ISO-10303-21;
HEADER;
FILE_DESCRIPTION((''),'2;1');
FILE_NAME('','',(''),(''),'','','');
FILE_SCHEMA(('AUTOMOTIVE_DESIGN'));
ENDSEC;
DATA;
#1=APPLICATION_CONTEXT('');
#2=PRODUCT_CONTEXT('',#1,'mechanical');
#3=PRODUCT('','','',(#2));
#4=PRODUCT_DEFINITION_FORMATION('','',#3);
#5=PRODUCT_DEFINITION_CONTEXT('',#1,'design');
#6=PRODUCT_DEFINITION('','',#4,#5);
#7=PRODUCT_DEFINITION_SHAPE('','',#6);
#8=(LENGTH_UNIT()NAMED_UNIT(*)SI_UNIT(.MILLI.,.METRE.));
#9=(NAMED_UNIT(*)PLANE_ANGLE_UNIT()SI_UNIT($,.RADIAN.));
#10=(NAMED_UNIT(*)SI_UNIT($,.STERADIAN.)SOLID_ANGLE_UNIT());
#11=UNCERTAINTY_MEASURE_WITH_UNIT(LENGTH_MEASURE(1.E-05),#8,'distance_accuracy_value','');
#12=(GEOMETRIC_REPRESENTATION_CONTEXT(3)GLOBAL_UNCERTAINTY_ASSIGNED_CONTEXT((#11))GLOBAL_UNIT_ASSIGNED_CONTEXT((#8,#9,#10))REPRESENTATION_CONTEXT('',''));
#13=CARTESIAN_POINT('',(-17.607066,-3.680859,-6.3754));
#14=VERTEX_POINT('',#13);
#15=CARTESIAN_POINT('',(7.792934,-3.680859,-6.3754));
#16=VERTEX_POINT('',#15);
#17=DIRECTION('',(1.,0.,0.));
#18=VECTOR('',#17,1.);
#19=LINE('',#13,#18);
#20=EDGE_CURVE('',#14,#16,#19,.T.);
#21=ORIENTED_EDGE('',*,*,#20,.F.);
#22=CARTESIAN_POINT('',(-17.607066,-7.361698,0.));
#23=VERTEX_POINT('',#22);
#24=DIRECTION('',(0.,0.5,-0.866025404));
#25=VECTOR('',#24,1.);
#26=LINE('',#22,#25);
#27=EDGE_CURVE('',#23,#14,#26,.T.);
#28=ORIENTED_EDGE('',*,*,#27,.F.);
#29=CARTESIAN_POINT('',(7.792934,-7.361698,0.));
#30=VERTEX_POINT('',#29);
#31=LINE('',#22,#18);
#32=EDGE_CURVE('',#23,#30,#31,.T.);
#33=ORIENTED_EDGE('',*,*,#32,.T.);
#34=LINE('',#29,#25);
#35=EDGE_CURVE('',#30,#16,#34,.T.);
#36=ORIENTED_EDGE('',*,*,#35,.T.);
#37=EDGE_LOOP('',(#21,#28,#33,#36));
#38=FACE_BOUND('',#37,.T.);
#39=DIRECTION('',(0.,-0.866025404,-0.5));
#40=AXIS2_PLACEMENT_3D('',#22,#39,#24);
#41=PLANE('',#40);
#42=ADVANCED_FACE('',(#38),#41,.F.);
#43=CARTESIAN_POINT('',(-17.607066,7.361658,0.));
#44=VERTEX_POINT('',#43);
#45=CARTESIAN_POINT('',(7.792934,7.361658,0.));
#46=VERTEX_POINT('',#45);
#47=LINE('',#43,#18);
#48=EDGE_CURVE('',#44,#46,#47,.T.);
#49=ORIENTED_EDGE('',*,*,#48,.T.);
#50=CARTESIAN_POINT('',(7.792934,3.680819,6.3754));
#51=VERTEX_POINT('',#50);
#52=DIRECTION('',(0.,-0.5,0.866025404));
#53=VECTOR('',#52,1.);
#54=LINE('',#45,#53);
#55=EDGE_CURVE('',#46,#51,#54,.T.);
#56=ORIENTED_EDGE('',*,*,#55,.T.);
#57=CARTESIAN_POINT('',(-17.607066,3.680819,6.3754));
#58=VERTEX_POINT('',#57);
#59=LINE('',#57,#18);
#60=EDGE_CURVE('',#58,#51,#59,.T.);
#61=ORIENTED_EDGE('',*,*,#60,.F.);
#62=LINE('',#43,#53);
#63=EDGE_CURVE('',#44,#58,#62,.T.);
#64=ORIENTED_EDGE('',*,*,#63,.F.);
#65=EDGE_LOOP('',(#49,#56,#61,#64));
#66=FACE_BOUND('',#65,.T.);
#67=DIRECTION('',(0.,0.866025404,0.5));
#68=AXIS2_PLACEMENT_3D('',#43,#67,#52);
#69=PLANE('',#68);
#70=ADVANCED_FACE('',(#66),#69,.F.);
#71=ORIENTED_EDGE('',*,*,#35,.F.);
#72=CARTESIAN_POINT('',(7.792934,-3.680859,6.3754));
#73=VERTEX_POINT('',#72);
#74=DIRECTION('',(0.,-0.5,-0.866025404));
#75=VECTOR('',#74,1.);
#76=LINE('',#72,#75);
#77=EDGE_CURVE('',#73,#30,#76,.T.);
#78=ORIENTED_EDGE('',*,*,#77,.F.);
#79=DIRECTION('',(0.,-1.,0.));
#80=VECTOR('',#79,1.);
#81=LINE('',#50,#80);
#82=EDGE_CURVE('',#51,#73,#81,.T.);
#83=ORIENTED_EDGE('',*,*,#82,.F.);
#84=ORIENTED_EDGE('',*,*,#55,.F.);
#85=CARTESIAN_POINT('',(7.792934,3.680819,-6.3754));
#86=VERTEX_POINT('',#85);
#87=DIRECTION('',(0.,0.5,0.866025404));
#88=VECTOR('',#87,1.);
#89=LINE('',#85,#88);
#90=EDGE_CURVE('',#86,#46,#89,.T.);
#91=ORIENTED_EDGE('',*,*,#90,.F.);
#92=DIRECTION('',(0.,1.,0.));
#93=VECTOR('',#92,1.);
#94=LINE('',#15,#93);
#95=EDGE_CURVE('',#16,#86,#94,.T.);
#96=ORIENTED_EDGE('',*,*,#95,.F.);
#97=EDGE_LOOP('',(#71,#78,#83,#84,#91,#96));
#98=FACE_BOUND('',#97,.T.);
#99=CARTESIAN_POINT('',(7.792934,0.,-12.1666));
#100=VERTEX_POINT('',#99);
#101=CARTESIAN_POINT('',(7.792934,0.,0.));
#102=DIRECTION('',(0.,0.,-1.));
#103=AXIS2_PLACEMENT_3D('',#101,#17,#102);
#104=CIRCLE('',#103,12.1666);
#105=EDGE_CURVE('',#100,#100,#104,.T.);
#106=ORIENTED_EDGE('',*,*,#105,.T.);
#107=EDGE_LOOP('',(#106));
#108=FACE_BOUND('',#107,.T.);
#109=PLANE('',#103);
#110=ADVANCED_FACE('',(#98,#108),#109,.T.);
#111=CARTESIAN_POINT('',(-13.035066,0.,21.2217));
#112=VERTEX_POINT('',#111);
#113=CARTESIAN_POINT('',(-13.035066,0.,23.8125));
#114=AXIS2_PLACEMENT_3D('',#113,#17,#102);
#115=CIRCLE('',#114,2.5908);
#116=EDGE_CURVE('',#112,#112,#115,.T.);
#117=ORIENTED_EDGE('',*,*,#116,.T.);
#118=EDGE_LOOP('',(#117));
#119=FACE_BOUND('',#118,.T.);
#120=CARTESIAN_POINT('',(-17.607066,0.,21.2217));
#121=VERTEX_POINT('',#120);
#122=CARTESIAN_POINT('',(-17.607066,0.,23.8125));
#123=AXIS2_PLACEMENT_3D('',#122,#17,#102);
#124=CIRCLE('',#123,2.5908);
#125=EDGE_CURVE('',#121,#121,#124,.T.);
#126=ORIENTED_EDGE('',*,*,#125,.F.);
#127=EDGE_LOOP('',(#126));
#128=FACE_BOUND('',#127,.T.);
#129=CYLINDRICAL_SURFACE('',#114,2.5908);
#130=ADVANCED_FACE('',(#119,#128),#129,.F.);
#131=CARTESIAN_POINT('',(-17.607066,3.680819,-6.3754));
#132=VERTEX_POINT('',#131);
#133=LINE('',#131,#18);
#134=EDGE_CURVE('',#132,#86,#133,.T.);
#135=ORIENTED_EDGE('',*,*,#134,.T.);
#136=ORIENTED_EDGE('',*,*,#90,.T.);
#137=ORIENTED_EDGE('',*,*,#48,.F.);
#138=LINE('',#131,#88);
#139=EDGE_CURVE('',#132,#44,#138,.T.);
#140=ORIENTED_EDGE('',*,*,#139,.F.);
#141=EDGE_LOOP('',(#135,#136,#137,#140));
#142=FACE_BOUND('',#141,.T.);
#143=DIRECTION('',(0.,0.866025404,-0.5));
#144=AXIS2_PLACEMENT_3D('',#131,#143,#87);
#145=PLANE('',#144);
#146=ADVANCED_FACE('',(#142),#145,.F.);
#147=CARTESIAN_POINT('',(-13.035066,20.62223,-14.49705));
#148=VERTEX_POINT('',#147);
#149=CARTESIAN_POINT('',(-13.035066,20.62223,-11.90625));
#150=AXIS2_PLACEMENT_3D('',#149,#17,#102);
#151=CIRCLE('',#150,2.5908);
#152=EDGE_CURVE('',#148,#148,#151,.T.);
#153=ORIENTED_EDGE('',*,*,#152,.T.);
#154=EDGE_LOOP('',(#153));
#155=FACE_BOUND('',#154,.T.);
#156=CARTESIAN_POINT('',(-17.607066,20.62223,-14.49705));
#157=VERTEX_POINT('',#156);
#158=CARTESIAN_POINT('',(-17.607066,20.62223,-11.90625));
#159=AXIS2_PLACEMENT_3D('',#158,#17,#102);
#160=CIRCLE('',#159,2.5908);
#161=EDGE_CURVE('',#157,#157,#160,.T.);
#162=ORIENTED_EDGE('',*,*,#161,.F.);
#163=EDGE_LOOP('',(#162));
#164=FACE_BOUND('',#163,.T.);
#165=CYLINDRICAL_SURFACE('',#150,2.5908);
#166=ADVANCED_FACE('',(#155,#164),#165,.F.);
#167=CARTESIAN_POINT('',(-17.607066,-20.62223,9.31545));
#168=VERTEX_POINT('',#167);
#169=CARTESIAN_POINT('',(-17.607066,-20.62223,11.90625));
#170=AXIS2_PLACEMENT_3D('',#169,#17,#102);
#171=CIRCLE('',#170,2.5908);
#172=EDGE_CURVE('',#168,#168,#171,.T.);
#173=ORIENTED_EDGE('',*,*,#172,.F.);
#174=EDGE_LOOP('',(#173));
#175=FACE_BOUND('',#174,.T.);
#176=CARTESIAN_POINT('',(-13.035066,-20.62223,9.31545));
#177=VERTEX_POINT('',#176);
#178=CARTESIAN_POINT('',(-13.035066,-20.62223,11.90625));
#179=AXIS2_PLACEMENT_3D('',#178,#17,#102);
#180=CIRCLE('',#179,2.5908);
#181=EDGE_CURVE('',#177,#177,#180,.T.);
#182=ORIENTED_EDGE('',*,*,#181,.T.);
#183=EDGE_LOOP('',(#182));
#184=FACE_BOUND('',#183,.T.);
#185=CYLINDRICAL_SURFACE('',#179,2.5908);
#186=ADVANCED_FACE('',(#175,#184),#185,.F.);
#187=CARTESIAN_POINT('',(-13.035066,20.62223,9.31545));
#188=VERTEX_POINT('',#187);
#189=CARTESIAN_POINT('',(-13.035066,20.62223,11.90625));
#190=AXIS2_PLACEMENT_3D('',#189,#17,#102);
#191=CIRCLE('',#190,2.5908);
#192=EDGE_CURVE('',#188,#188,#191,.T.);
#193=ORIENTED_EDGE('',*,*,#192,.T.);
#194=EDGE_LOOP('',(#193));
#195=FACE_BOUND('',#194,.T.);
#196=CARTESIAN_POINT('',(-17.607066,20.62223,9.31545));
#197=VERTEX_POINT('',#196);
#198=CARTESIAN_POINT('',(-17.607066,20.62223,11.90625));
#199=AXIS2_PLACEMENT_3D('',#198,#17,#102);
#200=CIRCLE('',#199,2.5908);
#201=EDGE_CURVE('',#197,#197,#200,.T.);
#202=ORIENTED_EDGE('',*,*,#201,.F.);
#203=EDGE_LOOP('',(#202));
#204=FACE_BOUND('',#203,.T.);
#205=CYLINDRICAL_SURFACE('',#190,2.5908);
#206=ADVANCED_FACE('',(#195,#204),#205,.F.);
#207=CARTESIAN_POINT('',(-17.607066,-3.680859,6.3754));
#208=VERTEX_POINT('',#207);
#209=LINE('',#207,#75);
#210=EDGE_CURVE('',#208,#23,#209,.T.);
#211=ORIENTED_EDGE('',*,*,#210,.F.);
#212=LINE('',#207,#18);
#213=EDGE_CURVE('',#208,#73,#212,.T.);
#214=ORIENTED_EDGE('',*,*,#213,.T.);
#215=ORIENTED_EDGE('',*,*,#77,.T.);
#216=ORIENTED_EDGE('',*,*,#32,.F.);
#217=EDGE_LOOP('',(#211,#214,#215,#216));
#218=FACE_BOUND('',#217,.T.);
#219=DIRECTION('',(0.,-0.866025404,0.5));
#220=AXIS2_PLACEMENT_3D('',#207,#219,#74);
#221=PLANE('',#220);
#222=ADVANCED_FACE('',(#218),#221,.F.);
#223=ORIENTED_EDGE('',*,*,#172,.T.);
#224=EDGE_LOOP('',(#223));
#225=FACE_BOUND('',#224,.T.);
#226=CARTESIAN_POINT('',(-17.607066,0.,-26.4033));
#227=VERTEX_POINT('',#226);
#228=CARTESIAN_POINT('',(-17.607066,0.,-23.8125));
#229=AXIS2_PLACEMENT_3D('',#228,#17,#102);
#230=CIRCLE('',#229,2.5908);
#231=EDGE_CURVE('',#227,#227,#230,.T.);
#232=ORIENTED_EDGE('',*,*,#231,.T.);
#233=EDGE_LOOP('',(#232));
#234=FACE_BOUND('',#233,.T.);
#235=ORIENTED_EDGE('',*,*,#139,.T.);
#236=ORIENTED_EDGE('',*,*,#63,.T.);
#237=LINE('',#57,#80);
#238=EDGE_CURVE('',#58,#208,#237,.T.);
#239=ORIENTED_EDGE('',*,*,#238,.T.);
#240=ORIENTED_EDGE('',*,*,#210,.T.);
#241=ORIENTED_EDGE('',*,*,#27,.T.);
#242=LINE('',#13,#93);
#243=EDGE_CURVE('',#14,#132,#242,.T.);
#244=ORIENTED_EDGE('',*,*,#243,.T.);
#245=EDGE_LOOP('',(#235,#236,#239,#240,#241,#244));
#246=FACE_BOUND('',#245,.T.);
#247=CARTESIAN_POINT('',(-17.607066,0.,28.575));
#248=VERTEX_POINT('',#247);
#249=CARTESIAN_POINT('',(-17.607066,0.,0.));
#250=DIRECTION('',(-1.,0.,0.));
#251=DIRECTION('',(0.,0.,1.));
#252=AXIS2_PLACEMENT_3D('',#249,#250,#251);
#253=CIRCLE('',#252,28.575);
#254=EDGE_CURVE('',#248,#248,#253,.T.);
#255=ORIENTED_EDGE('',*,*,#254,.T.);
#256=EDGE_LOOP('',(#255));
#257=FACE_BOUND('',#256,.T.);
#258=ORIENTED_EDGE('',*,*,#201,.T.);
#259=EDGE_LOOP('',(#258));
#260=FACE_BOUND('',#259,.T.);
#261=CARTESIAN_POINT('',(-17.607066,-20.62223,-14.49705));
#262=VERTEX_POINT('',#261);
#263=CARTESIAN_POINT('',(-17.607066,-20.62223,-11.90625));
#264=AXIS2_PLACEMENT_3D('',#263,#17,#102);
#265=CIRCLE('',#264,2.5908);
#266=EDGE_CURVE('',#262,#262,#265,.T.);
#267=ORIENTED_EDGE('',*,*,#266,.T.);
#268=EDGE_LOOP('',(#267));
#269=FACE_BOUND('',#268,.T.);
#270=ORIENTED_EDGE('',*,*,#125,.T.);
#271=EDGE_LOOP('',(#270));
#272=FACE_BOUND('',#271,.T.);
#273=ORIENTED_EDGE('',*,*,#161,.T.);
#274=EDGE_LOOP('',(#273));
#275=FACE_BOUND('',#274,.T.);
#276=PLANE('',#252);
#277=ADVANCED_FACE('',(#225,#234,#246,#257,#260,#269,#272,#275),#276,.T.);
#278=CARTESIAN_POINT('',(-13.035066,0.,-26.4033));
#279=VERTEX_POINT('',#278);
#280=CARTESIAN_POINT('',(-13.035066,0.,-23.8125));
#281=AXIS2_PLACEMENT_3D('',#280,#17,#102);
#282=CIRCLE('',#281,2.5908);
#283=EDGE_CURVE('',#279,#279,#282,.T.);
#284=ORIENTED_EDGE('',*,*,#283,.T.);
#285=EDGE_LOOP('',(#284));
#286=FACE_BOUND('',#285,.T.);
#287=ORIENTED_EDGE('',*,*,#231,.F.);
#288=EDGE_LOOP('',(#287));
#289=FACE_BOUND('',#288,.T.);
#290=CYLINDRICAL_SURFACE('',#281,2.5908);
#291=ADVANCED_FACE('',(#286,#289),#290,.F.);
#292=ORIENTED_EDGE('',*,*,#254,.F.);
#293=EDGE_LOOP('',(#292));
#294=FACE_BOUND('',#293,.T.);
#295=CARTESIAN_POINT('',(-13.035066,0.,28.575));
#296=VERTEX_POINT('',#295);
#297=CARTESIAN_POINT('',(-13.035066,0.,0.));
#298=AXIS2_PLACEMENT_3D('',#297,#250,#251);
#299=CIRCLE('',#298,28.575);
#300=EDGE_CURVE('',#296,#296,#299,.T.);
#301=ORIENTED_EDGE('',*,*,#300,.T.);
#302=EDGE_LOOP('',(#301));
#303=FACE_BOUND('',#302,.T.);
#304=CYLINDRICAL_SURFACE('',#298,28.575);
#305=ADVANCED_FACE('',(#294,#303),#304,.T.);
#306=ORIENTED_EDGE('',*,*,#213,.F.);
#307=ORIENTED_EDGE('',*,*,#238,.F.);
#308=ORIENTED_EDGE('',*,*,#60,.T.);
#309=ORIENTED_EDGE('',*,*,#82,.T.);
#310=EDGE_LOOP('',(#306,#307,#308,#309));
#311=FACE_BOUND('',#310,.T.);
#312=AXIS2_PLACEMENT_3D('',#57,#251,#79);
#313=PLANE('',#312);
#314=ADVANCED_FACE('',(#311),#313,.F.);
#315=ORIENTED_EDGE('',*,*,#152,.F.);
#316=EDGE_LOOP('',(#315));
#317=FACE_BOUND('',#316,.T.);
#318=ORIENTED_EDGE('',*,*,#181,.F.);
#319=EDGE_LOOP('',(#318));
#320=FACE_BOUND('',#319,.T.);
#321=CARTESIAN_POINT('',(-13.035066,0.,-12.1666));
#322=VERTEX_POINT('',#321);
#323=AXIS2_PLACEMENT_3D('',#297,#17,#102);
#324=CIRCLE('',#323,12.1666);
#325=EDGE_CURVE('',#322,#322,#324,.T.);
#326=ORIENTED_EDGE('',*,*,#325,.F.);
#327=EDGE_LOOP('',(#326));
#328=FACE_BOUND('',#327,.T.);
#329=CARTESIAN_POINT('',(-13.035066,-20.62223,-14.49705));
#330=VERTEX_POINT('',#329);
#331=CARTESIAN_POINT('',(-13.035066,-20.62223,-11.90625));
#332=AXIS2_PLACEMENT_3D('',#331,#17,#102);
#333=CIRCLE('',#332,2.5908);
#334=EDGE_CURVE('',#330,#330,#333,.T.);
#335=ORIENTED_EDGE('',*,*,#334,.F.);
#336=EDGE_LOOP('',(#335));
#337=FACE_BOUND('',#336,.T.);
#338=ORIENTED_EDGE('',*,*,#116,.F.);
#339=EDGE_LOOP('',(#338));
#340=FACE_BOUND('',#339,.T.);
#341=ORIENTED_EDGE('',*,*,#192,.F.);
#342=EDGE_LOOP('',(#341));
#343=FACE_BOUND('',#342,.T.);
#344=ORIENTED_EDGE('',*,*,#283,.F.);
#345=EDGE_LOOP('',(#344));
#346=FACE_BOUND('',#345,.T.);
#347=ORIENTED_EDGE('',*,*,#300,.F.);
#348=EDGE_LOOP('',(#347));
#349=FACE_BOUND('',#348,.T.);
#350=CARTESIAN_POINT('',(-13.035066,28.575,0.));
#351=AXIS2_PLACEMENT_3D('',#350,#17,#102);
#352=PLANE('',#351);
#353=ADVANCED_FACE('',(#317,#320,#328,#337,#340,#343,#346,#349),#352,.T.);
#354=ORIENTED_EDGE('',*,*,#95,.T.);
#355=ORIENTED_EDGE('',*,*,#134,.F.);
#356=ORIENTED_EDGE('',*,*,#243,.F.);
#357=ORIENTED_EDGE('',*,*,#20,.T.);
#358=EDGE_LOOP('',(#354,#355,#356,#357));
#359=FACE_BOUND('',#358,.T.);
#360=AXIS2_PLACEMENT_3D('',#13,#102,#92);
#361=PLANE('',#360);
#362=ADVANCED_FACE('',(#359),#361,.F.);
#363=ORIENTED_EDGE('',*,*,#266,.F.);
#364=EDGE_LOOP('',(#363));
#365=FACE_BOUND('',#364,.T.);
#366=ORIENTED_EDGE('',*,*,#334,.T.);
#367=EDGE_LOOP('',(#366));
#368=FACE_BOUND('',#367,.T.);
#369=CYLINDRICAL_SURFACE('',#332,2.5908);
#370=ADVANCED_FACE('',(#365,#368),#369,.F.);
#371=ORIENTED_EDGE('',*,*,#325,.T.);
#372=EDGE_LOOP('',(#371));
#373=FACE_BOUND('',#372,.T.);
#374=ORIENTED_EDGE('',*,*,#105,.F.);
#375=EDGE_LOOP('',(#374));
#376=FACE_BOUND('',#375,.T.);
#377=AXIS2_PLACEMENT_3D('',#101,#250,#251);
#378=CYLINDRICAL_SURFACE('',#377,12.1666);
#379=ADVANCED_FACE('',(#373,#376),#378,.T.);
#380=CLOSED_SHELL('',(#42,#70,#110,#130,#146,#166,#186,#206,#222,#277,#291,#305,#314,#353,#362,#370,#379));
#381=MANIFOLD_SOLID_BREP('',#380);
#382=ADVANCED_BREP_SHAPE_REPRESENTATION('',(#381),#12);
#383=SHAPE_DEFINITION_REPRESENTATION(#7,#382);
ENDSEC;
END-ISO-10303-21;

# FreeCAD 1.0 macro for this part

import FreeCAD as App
import Part
import Sketcher
Q = App.Units.Quantity


def add_polygon(sketch, points):
    """Adds a closed chain of lines whose ends are joined by coincident constraints."""
    first, n = sketch.GeometryCount, len(points)
    for a, b in zip(points, points[1:] + points[:1]):
        sketch.addGeometry(Part.LineSegment(App.Vector(*a, 0), App.Vector(*b, 0)), False)
    for i in range(n):
        sketch.addConstraint(Sketcher.Constraint("Coincident", first + i, 2, first + (i + 1) % n, 1))

doc = App.newDocument("Part")
body = doc.addObject("PartDesign::Body", "Body")

# Sketch on XY plane
sketch1 = body.newObject("Sketcher::SketchObject", "Sketch")
sketch1.AttachmentSupport = (doc.getObject("XY_Plane"), [""])
sketch1.MapMode = "FlatFace"
add_polygon(sketch1, [(-13.035066, 28.575), (-13.035066, 0), (-17.607066, 0), (-17.607066, 28.575)])  # lines 0-3
sketch1.addConstraint(Sketcher.Constraint("Vertical", 0))
sketch1.addConstraint(Sketcher.Constraint("Horizontal", 1))
sketch1.addConstraint(Sketcher.Constraint("Vertical", 2))
sketch1.addConstraint(Sketcher.Constraint("Horizontal", 3))
sketch1.addConstraint(Sketcher.Constraint("PointOnObject", 0, 2, -1))
sketch1.addConstraint(Sketcher.Constraint("DistanceX", 1, 2, 1, 1, Q("0.18 in")))
sketch1.addConstraint(Sketcher.Constraint("DistanceY", 0, 2, 0, 1, Q("1.125 in")))
sketch1.addConstraint(Sketcher.Constraint("DistanceX", 0, 2, -1, 1, 13.035066))
revolution = body.newObject("PartDesign::Revolution", "Revolution")
revolution.Profile = sketch1
revolution.ReferenceAxis = (sketch1, ["H_Axis"])
revolution.Angle = 360

# Sketch on YZ plane
sketch2 = body.newObject("Sketcher::SketchObject", "Sketch001")
sketch2.AttachmentSupport = (doc.getObject("YZ_Plane"), [""])
sketch2.MapMode = "FlatFace"
sketch2.AttachmentOffset = App.Placement(App.Vector(0, 0, -13.035066), App.Rotation())
sketch2.addGeometry(Part.Circle(App.Vector(0, 0, 0), App.Vector(0, 0, 1), 12.1666), False)
sketch2.addConstraint(Sketcher.Constraint("Coincident", 0, 3, -1, 1))
sketch2.addConstraint(Sketcher.Constraint("Diameter", 0, Q("0.958 in")))
pad1 = body.newObject("PartDesign::Pad", "Pad")
pad1.Profile = sketch2
pad1.Length = Q("0.82 in")

# Sketch on YZ plane
sketch3 = body.newObject("Sketcher::SketchObject", "Sketch002")
sketch3.AttachmentSupport = (doc.getObject("YZ_Plane"), [""])
sketch3.MapMode = "FlatFace"
sketch3.AttachmentOffset = App.Placement(App.Vector(0, 0, 7.792934), App.Rotation())
add_polygon(sketch3, [(-7.361698, 0), (-3.680859, -6.3754), (3.680819, -6.3754), (7.361658, 0), (3.680819, 6.3754), (-3.680859, 6.3754)])  # lines 0-5
sketch3.addConstraint(Sketcher.Constraint("Horizontal", 1))
sketch3.addConstraint(Sketcher.Constraint("Horizontal", 4))
sketch3.addConstraint(Sketcher.Constraint("Symmetric", 1, 2, 3, 2, -1))
sketch3.addConstraint(Sketcher.Constraint("PointOnObject", 2, 2, -1))
sketch3.addConstraint(Sketcher.Constraint("PointOnObject", 5, 2, -1))
sketch3.addConstraint(Sketcher.Constraint("Parallel", 0, 3))
sketch3.addConstraint(Sketcher.Constraint("Parallel", 2, 5))
sketch3.addConstraint(Sketcher.Constraint("Angle", 0, Q("-60 deg")))
sketch3.addConstraint(Sketcher.Constraint("DistanceY", 0, 2, -1, 1, Q("0.251 in")))
sketch3.addConstraint(Sketcher.Constraint("DistanceX", 1, 1, 1, 2, 7.361678))
sketch3.addConstraint(Sketcher.Constraint("DistanceX", 0, 2, -1, 1, 3.680859))
pocket1 = body.newObject("PartDesign::Pocket", "Pocket")
pocket1.Profile = sketch3
pocket1.Type = "ThroughAll"

# Sketch on YZ plane
sketch4 = body.newObject("Sketcher::SketchObject", "Sketch003")
sketch4.AttachmentSupport = (doc.getObject("YZ_Plane"), [""])
sketch4.MapMode = "FlatFace"
sketch4.AttachmentOffset = App.Placement(App.Vector(0, 0, -13.035066), App.Rotation())
sketch4.addGeometry(Part.Circle(App.Vector(0, 23.8125, 0), App.Vector(0, 0, 1), 2.5908), False)
sketch4.addConstraint(Sketcher.Constraint("PointOnObject", 0, 3, -2))
sketch4.addConstraint(Sketcher.Constraint("Diameter", 0, Q("0.204 in")))
sketch4.addConstraint(Sketcher.Constraint("DistanceY", -1, 1, 0, 3, Q("0.9375 in")))
doc.recompute()
hole = body.newObject("PartDesign::Hole", "Hole")
hole.Profile = sketch4
hole.ThreadType = "None"
hole.Diameter = Q("0.204 in")
hole.DepthType = "Dimension"
hole.Depth = Q("0.18 in")
hole.DrillPoint = "Flat"
doc.recompute()

polarpattern = body.newObject("PartDesign::PolarPattern", "PolarPattern")
polarpattern.Originals = [hole]
polarpattern.Axis = (doc.getObject("X_Axis"), [""])
polarpattern.Angle = 360
polarpattern.Occurrences = 6
body.Tip = polarpattern

doc.recompute()
